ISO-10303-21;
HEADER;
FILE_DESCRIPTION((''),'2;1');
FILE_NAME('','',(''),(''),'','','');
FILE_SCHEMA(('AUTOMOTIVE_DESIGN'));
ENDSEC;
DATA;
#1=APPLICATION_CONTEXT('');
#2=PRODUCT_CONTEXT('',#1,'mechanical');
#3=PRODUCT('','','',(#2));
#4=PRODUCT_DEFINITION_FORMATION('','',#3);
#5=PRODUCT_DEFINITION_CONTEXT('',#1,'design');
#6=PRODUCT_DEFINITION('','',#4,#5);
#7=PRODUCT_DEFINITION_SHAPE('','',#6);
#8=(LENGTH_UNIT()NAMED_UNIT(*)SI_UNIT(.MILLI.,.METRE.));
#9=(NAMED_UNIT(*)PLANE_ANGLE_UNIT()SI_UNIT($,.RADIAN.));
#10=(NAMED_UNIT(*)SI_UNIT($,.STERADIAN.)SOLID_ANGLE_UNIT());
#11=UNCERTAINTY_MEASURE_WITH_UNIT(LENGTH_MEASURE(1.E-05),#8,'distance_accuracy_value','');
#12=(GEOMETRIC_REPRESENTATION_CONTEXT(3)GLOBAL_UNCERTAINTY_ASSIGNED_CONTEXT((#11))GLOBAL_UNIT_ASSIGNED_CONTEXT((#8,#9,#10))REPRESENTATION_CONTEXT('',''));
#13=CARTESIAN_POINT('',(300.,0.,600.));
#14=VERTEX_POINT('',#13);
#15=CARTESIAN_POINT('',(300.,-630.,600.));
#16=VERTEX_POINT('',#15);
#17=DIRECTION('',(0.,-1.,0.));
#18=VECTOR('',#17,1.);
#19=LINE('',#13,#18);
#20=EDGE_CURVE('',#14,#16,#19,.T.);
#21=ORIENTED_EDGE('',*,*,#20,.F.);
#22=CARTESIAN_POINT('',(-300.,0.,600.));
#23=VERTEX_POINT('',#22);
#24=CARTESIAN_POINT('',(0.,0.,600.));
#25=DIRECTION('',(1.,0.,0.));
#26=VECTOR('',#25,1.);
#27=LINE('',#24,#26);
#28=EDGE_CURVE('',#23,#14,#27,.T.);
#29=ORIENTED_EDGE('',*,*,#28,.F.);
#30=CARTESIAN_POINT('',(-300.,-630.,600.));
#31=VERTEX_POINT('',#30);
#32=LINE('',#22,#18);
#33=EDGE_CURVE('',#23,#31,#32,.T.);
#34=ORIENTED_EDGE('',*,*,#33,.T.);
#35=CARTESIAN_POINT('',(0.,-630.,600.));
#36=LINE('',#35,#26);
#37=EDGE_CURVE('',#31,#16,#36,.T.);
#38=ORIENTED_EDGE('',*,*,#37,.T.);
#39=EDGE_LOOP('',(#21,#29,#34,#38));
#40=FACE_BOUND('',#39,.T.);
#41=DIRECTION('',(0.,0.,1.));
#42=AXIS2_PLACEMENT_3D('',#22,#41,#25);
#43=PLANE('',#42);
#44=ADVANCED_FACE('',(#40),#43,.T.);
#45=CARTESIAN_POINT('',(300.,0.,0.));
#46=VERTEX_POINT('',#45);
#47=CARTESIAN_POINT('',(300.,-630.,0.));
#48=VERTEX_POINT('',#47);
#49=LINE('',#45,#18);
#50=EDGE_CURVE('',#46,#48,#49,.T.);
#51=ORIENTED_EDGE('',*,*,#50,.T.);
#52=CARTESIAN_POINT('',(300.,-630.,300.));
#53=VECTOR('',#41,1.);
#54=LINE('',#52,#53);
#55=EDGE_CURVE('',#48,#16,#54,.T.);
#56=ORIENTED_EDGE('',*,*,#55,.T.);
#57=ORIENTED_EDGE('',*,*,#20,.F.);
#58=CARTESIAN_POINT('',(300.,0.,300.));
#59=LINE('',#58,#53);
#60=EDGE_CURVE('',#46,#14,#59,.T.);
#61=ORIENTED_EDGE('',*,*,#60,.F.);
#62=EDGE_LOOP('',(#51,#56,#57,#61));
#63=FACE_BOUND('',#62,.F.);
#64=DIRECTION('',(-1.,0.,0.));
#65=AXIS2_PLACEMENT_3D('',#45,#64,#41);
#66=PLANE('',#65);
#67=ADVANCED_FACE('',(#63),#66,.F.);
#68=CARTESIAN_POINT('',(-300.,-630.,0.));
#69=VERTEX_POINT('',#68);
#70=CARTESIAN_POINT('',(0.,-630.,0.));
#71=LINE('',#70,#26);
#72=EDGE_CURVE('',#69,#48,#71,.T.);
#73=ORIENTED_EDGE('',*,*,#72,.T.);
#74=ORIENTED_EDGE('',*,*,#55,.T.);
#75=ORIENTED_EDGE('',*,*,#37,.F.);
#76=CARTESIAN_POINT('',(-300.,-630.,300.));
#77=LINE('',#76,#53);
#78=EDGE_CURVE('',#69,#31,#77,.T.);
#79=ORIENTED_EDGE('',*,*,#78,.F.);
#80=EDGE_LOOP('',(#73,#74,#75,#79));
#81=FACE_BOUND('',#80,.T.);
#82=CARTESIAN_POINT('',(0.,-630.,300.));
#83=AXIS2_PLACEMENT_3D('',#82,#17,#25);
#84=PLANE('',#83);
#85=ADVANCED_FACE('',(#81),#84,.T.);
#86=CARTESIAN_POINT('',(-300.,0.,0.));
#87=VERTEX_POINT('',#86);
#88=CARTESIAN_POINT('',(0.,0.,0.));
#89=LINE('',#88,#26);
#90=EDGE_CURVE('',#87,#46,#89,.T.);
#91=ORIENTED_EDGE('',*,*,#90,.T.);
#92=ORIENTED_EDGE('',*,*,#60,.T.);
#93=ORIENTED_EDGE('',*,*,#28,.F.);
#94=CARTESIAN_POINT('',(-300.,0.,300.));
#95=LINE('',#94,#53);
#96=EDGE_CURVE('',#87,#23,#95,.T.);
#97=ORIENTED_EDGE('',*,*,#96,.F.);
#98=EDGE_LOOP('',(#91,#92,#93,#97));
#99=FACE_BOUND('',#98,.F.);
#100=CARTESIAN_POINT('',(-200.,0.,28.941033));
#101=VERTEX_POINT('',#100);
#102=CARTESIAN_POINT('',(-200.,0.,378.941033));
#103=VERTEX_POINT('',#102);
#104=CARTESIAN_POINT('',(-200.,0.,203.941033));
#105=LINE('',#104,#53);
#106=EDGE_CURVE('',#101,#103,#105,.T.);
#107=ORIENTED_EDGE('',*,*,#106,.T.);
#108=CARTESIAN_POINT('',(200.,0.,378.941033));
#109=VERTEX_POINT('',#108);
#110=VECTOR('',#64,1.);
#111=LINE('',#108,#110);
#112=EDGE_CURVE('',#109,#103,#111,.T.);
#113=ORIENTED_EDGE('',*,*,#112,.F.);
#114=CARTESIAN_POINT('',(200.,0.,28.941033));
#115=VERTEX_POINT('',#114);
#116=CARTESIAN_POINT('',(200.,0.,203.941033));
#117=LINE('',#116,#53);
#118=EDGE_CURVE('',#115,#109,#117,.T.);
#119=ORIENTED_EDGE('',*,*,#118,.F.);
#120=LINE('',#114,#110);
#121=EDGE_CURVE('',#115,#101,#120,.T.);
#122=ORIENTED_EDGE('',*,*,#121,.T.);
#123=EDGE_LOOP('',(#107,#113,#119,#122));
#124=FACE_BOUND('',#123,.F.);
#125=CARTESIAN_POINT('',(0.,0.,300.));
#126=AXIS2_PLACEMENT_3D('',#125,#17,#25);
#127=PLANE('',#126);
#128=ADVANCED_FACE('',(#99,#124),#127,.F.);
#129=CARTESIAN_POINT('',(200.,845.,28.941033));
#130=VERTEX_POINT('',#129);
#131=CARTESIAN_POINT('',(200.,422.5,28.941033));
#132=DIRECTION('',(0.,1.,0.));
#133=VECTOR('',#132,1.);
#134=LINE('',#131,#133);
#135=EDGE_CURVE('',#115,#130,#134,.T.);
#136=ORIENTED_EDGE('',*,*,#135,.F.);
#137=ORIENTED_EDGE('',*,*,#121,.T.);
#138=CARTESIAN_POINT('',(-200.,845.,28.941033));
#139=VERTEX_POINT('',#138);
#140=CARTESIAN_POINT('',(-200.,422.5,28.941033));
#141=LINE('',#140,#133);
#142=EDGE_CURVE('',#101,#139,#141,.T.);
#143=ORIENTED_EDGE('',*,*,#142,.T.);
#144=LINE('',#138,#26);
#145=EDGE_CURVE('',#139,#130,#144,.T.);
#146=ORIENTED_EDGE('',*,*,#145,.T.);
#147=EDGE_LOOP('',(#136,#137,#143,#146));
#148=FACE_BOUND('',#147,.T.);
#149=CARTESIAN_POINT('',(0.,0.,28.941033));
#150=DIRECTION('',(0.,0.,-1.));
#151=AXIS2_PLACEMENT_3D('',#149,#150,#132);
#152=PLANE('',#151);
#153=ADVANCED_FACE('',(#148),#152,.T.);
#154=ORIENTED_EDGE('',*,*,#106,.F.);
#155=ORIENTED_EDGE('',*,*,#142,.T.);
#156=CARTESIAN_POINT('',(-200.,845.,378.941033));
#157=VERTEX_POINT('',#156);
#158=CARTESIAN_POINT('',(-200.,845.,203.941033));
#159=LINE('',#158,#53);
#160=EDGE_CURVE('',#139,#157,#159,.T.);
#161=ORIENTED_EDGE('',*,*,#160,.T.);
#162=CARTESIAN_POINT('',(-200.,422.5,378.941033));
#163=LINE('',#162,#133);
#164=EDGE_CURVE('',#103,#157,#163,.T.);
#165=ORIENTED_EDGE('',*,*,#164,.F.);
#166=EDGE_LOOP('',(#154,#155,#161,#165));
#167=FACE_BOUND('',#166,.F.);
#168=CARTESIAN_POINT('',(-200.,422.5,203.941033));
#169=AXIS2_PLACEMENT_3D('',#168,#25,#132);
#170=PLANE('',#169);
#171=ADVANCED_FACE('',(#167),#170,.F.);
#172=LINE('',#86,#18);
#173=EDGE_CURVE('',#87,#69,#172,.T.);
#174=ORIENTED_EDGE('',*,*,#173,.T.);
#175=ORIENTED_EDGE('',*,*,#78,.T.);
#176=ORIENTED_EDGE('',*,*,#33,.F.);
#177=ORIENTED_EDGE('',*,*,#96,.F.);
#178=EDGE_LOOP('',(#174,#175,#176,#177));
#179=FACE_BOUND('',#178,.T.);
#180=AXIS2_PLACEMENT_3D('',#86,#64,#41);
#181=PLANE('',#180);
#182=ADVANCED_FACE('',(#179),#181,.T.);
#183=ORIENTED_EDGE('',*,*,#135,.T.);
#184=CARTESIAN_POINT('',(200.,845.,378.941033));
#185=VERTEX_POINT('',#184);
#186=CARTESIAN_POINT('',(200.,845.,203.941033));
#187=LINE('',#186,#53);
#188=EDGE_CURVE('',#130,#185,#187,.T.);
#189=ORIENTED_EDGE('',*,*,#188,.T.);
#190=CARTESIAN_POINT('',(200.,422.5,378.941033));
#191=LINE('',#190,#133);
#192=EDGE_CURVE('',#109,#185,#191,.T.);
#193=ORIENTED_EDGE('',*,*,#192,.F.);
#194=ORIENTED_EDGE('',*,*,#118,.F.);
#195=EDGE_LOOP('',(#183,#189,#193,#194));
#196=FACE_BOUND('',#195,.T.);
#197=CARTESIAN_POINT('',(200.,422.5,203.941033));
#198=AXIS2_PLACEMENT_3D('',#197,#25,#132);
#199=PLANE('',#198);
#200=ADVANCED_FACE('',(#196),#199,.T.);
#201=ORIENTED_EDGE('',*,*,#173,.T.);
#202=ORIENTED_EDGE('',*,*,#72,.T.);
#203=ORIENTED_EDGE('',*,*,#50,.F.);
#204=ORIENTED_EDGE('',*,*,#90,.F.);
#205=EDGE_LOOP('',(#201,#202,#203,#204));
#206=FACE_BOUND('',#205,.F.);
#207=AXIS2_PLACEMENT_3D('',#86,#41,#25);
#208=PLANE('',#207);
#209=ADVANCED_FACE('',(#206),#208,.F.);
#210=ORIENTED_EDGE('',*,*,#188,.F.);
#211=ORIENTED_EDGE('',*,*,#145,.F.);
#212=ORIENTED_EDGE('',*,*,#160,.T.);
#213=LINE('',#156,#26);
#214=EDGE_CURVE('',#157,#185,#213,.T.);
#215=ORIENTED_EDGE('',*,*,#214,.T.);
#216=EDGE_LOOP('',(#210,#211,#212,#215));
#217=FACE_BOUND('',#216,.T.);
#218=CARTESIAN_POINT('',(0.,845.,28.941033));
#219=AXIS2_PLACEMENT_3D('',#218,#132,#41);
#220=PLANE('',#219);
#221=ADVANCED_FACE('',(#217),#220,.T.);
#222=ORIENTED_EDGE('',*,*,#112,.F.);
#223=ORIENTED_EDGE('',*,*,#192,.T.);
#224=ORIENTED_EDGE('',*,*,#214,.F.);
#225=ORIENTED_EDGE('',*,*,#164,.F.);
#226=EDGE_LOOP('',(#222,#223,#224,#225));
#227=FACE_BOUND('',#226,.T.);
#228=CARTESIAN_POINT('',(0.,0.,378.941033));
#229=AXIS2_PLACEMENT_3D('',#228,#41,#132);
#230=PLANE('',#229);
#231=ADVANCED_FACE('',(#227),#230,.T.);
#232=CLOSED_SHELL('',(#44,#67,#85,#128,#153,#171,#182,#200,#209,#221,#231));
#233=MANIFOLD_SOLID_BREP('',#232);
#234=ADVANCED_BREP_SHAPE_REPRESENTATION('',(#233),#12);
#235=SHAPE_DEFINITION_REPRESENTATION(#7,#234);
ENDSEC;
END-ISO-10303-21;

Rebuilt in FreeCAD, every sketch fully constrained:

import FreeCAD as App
import Part
import Sketcher
from FreeCAD import Vector
Q = App.Units.Quantity


def add_polygon(sketch, points):
    """Adds a closed chain of lines whose ends are joined by coincident constraints."""
    first, n = sketch.GeometryCount, len(points)
    for a, b in zip(points, points[1:] + points[:1]):
        sketch.addGeometry(Part.LineSegment(App.Vector(*a, 0), App.Vector(*b, 0)), False)
    for i in range(n):
        sketch.addConstraint(Sketcher.Constraint("Coincident", first + i, 2, first + (i + 1) % n, 1))

doc = App.newDocument("Part")
body = doc.addObject("PartDesign::Body", "Body")

# Sketch on XZ plane
sketch1 = body.newObject("Sketcher::SketchObject", "Sketch")
sketch1.AttachmentSupport = (doc.getObject("XZ_Plane"), [""])
sketch1.MapMode = "FlatFace"
add_polygon(sketch1, [(-300, 600), (-300, 0), (300, 0), (300, 600)])  # lines 0-3
sketch1.addConstraint([
    Sketcher.Constraint("Vertical", 0),
    Sketcher.Constraint("Horizontal", 1),
    Sketcher.Constraint("Vertical", 2),
    Sketcher.Constraint("Horizontal", 3),
    Sketcher.Constraint("Symmetric", 0, 2, 1, 2, -1, 1),
    Sketcher.Constraint("Equal", 3, 0),
    Sketcher.Constraint("DistanceX", 1, 1, 1, 2, Q("600 mm")),
])
pad1 = body.newObject("PartDesign::Pad", "Pad")
pad1.Profile = sketch1
pad1.Length = 630

# Sketch on YZ plane
sketch2 = body.newObject("Sketcher::SketchObject", "Sketch001")
sketch2.AttachmentSupport = (doc.getObject("YZ_Plane"), [""])
sketch2.MapMode = "FlatFace"
add_polygon(sketch2, [(0, 379), (0, 29), (845, 29), (845, 379)])  # lines 0-3
sketch2.addConstraint([
    Sketcher.Constraint("Vertical", 0),
    Sketcher.Constraint("Horizontal", 1),
    Sketcher.Constraint("Vertical", 2),
    Sketcher.Constraint("Horizontal", 3),
    Sketcher.Constraint("PointOnObject", 0, 2, -2),
    Sketcher.Constraint("DistanceX", 1, 1, 1, 2, Q("845 mm")),
    Sketcher.Constraint("DistanceY", 0, 2, 0, 1, Q("350 mm")),
    Sketcher.Constraint("DistanceY", -1, 1, 0, 2, Q("28.941033 mm")),
])
pad2 = body.newObject("PartDesign::Pad", "Pad001")
pad2.Profile = sketch2
pad2.Type = "TwoLengths"
pad2.Length = 200
pad2.Length2 = 200

doc.recompute()
